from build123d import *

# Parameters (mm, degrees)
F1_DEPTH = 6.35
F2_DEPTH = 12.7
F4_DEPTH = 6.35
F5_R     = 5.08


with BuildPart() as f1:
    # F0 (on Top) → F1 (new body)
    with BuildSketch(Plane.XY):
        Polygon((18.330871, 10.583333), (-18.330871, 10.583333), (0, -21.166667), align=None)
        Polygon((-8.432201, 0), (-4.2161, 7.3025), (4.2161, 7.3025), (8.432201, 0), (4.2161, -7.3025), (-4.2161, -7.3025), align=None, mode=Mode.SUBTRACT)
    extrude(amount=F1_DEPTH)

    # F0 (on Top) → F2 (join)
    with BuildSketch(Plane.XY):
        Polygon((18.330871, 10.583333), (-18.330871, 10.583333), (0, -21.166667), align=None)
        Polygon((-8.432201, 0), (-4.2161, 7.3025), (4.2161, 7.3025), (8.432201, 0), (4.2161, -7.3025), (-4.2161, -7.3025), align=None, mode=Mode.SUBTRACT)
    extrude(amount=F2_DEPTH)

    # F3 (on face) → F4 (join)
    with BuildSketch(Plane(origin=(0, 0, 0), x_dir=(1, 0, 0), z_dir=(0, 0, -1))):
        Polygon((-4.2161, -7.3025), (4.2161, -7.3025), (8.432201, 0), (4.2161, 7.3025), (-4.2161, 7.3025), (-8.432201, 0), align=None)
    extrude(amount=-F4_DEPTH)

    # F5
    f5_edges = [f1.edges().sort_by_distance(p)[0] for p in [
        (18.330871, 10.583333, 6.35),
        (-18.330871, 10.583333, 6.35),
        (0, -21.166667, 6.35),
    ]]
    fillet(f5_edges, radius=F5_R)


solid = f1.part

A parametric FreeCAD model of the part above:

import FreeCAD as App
import Part
import Sketcher

V = App.Vector
Q = App.Units.Quantity


def edges_at(feature, points):
    """Names of the edges that pass closest to the given points."""
    edges = feature.Shape.Edges
    near = lambda p: min(range(len(edges)), key=lambda i: edges[i].distToShape(Part.Vertex(*p))[0])
    return sorted({f"Edge{near(p) + 1}" for p in points})

doc = App.newDocument("Part")
body = doc.addObject("PartDesign::Body", "Body")

sketch1 = body.newObject("Sketcher::SketchObject", "Sketch")
sketch1.AttachmentSupport = (doc.getObject("XY_Plane"), [""])
sketch1.MapMode = "FlatFace"
sketch1.addGeometry([
    Part.LineSegment(V(18, 11, 0), V(-18, 11, 0)),
    Part.LineSegment(V(-18, 11, 0), V(0, -21, 0)),
    Part.LineSegment(V(0, -21, 0), V(18, 11, 0)),
    Part.LineSegment(V(-4, -7, 0), V(-8, 0, 0)),
    Part.LineSegment(V(-8, 0, 0), V(-4, 7, 0)),
    Part.LineSegment(V(-4, 7, 0), V(4, 7, 0)),
    Part.LineSegment(V(4, 7, 0), V(8, 0, 0)),
    Part.LineSegment(V(8, 0, 0), V(4, -7, 0)),
    Part.LineSegment(V(4, -7, 0), V(-4, -7, 0)),
], False)
sketch1.addConstraint([
    Sketcher.Constraint("Coincident", 0, 2, 1, 1),
    Sketcher.Constraint("Coincident", 1, 2, 2, 1),
    Sketcher.Constraint("Coincident", 2, 2, 0, 1),
    Sketcher.Constraint("Coincident", 3, 2, 4, 1),
    Sketcher.Constraint("Coincident", 4, 2, 5, 1),
    Sketcher.Constraint("Coincident", 5, 2, 6, 1),
    Sketcher.Constraint("Coincident", 6, 2, 7, 1),
    Sketcher.Constraint("Coincident", 7, 2, 8, 1),
    Sketcher.Constraint("Coincident", 8, 2, 3, 1),
    Sketcher.Constraint("Horizontal", 0),
    Sketcher.Constraint("Horizontal", 5),
    Sketcher.Constraint("Horizontal", 8),
    Sketcher.Constraint("Symmetric", 3, 2, 6, 2, -1, 1),
    Sketcher.Constraint("Symmetric", 4, 2, 7, 2, -1, 1),
    Sketcher.Constraint("PointOnObject", 1, 2, -2),
    Sketcher.Constraint("PointOnObject", 3, 2, -1),
    Sketcher.Constraint("Parallel", 1, 3),
    Sketcher.Constraint("Parallel", 2, 4),
    Sketcher.Constraint("Parallel", 3, 6),
    Sketcher.Constraint("Vertical", 5, 2, 7, 2),
    Sketcher.Constraint("Angle", 1, Q("-60 deg")),
    Sketcher.Constraint("DistanceY", 1, 2, 0, 2, Q("1.25 in")),
    Sketcher.Constraint("DistanceY", 7, 2, 5, 2, Q("0.575 in")),
    Sketcher.Constraint("DistanceX", 5, 1, 5, 2, 8.4322),
    Sketcher.Constraint("DistanceY", -1, 1, 0, 2, 10.583333),
])
pad1 = body.newObject("PartDesign::Pad", "Pad")
pad1.Profile = sketch1
pad1.Length = Q("0.25 in")

sketch2 = body.newObject("Sketcher::SketchObject", "Sketch001")
sketch2.AttachmentSupport = (doc.getObject("XY_Plane"), [""])
sketch2.MapMode = "FlatFace"
sketch2.addGeometry([
    Part.LineSegment(V(18, 11, 0), V(-18, 11, 0)),
    Part.LineSegment(V(-18, 11, 0), V(0, -21, 0)),
    Part.LineSegment(V(0, -21, 0), V(18, 11, 0)),
    Part.LineSegment(V(-4, -7, 0), V(-8, 0, 0)),
    Part.LineSegment(V(-8, 0, 0), V(-4, 7, 0)),
    Part.LineSegment(V(-4, 7, 0), V(4, 7, 0)),
    Part.LineSegment(V(4, 7, 0), V(8, 0, 0)),
    Part.LineSegment(V(8, 0, 0), V(4, -7, 0)),
    Part.LineSegment(V(4, -7, 0), V(-4, -7, 0)),
], False)
sketch2.addConstraint([
    Sketcher.Constraint("Coincident", 0, 2, 1, 1),
    Sketcher.Constraint("Coincident", 1, 2, 2, 1),
    Sketcher.Constraint("Coincident", 2, 2, 0, 1),
    Sketcher.Constraint("Coincident", 3, 2, 4, 1),
    Sketcher.Constraint("Coincident", 4, 2, 5, 1),
    Sketcher.Constraint("Coincident", 5, 2, 6, 1),
    Sketcher.Constraint("Coincident", 6, 2, 7, 1),
    Sketcher.Constraint("Coincident", 7, 2, 8, 1),
    Sketcher.Constraint("Coincident", 8, 2, 3, 1),
    Sketcher.Constraint("Horizontal", 0),
    Sketcher.Constraint("Horizontal", 5),
    Sketcher.Constraint("Horizontal", 8),
    Sketcher.Constraint("Symmetric", 3, 2, 6, 2, -1, 1),
    Sketcher.Constraint("Symmetric", 4, 2, 7, 2, -1, 1),
    Sketcher.Constraint("PointOnObject", 1, 2, -2),
    Sketcher.Constraint("PointOnObject", 3, 2, -1),
    Sketcher.Constraint("Parallel", 1, 3),
    Sketcher.Constraint("Parallel", 2, 4),
    Sketcher.Constraint("Parallel", 3, 6),
    Sketcher.Constraint("Vertical", 5, 2, 7, 2),
    Sketcher.Constraint("Angle", 1, Q("-60 deg")),
    Sketcher.Constraint("DistanceY", 1, 2, 0, 2, Q("1.25 in")),
    Sketcher.Constraint("DistanceY", 7, 2, 5, 2, Q("0.575 in")),
    Sketcher.Constraint("DistanceX", 5, 1, 5, 2, 8.4322),
    Sketcher.Constraint("DistanceY", -1, 1, 0, 2, 10.583333),
])
pad2 = body.newObject("PartDesign::Pad", "Pad001")
pad2.Profile = sketch2
pad2.Length = Q("0.5 in")

sketch3 = body.newObject("Sketcher::SketchObject", "Sketch002")
sketch3.AttachmentSupport = (doc.getObject("XY_Plane"), [""])
sketch3.MapMode = "FlatFace"
sketch3.addGeometry([
    Part.LineSegment(V(-4, 7, 0), V(4, 7, 0)),
    Part.LineSegment(V(4, 7, 0), V(8, 0, 0)),
    Part.LineSegment(V(8, 0, 0), V(4, -7, 0)),
    Part.LineSegment(V(4, -7, 0), V(-4, -7, 0)),
    Part.LineSegment(V(-4, -7, 0), V(-8, 0, 0)),
    Part.LineSegment(V(-8, 0, 0), V(-4, 7, 0)),
], False)
sketch3.addConstraint([
    Sketcher.Constraint("Coincident", 0, 2, 1, 1),
    Sketcher.Constraint("Coincident", 1, 2, 2, 1),
    Sketcher.Constraint("Coincident", 2, 2, 3, 1),
    Sketcher.Constraint("Coincident", 3, 2, 4, 1),
    Sketcher.Constraint("Coincident", 4, 2, 5, 1),
    Sketcher.Constraint("Coincident", 5, 2, 0, 1),
    Sketcher.Constraint("Horizontal", 0),
    Sketcher.Constraint("Horizontal", 3),
    Sketcher.Constraint("Symmetric", 0, 2, 3, 2, -1, 1),
    Sketcher.Constraint("Symmetric", 1, 2, 4, 2, -1, 1),
    Sketcher.Constraint("PointOnObject", 1, 2, -1),
    Sketcher.Constraint("Parallel", 2, 5),
    Sketcher.Constraint("Vertical", 0, 2, 2, 2),
    Sketcher.Constraint("Angle", 1, Q("-59.999996 deg")),
    Sketcher.Constraint("DistanceY", 2, 2, 0, 2, Q("0.575 in")),
    Sketcher.Constraint("DistanceX", 0, 1, 0, 2, 8.4322),
])
pad3 = body.newObject("PartDesign::Pad", "Pad002")
pad3.Profile = sketch3
pad3.Length = Q("0.25 in")
doc.recompute()

fillet = body.newObject("PartDesign::Fillet", "Fillet")
fillet.Base = (pad3, edges_at(pad3, [(18.331, 10.583, 6.35), (-18.331, 10.583, 6.35), (0, -21.167, 6.35)]))
fillet.Radius = Q("0.2 in")

doc.recompute()
